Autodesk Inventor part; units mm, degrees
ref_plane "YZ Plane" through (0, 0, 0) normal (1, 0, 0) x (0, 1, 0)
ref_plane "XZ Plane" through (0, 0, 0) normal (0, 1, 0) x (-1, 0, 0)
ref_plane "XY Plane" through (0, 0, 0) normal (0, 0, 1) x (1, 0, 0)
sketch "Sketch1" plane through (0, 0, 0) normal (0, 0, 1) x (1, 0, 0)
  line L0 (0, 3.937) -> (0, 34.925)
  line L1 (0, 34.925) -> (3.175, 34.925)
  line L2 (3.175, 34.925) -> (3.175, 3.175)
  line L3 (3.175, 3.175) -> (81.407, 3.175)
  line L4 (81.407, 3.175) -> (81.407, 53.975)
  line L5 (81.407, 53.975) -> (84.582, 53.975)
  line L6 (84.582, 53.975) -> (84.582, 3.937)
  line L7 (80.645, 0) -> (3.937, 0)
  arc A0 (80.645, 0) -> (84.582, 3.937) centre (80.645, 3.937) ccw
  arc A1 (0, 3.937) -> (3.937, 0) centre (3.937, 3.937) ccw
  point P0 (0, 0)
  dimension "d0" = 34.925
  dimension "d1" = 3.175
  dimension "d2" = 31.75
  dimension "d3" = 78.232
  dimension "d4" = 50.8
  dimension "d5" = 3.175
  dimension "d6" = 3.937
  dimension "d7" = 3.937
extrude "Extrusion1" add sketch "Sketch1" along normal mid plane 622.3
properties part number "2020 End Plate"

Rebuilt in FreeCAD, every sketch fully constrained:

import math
import FreeCAD as App
import Part
import Sketcher
from FreeCAD import Vector
Q = App.Units.Quantity

doc = App.newDocument("Part")
body = doc.addObject("PartDesign::Body", "Body")

sketch1 = body.newObject("Sketcher::SketchObject", "Sketch")
sketch1.AttachmentSupport = (doc.getObject("XY_Plane"), [""])
sketch1.MapMode = "FlatFace"
sketch1.addGeometry(Part.LineSegment(Vector(0, 34.9, 0), Vector(0, 3.9, 0)), False)
sketch1.addGeometry(Part.ArcOfCircle(Part.Circle(Vector(3.9, 3.9, 0), Vector(0, 0, 1), 3.9), math.radians(180), math.radians(270)), False)
sketch1.addGeometry(Part.LineSegment(Vector(3.9, 0, 0), Vector(80.6, 0, 0)), False)
sketch1.addGeometry(Part.ArcOfCircle(Part.Circle(Vector(80.6, 3.9, 0), Vector(0, 0, 1), 3.9), math.radians(-90), math.radians(0)), False)
sketch1.addGeometry(Part.LineSegment(Vector(84.6, 3.9, 0), Vector(84.6, 54, 0)), False)
sketch1.addGeometry(Part.LineSegment(Vector(84.6, 54, 0), Vector(81.4, 54, 0)), False)
sketch1.addGeometry(Part.LineSegment(Vector(81.4, 54, 0), Vector(81.4, 3.2, 0)), False)
sketch1.addGeometry(Part.LineSegment(Vector(81.4, 3.2, 0), Vector(3.2, 3.2, 0)), False)
sketch1.addGeometry(Part.LineSegment(Vector(3.2, 3.2, 0), Vector(3.2, 34.9, 0)), False)
sketch1.addGeometry(Part.LineSegment(Vector(3.2, 34.9, 0), Vector(0, 34.9, 0)), False)
sketch1.addConstraint(Sketcher.Constraint("Tangent", 0, 2, 1, 1))
sketch1.addConstraint(Sketcher.Constraint("Tangent", 1, 2, 2, 1))
sketch1.addConstraint(Sketcher.Constraint("Tangent", 2, 2, 3, 1))
sketch1.addConstraint(Sketcher.Constraint("Tangent", 3, 2, 4, 1))
sketch1.addConstraint(Sketcher.Constraint("Coincident", 4, 2, 5, 1))
sketch1.addConstraint(Sketcher.Constraint("Coincident", 5, 2, 6, 1))
sketch1.addConstraint(Sketcher.Constraint("Coincident", 6, 2, 7, 1))
sketch1.addConstraint(Sketcher.Constraint("Coincident", 7, 2, 8, 1))
sketch1.addConstraint(Sketcher.Constraint("Coincident", 8, 2, 9, 1))
sketch1.addConstraint(Sketcher.Constraint("Coincident", 9, 2, 0, 1))
sketch1.addConstraint(Sketcher.Constraint("Vertical", 0))
sketch1.addConstraint(Sketcher.Constraint("Horizontal", 2))
sketch1.addConstraint(Sketcher.Constraint("Vertical", 4))
sketch1.addConstraint(Sketcher.Constraint("Horizontal", 5))
sketch1.addConstraint(Sketcher.Constraint("Vertical", 6))
sketch1.addConstraint(Sketcher.Constraint("Horizontal", 7))
sketch1.addConstraint(Sketcher.Constraint("Vertical", 8))
sketch1.addConstraint(Sketcher.Constraint("Horizontal", 9))
sketch1.addConstraint(Sketcher.Constraint("Equal", 1, 3))
sketch1.addConstraint(Sketcher.Constraint("PointOnObject", 0, 2, -2))
sketch1.addConstraint(Sketcher.Constraint("PointOnObject", 1, 2, -1))
sketch1.addConstraint(Sketcher.Constraint("Equal", 5, 9))
sketch1.addConstraint(Sketcher.Constraint("DistanceY", 6, 2, 6, 1, Q("2 in")))
sketch1.addConstraint(Sketcher.Constraint("Radius", 1, Q("0.155 in")))
sketch1.addConstraint(Sketcher.Constraint("DistanceX", 7, 2, 7, 1, Q("3.08 in")))
sketch1.addConstraint(Sketcher.Constraint("DistanceY", 8, 1, 8, 2, Q("1.25 in")))
sketch1.addConstraint(Sketcher.Constraint("DistanceX", 5, 2, 5, 1, Q("0.125 in")))
sketch1.addConstraint(Sketcher.Constraint("DistanceY", -1, 1, 6, 2, Q("0.125 in")))
pad1 = body.newObject("PartDesign::Pad", "Pad")
pad1.Profile = sketch1
pad1.Length = Q("24.5 in")
pad1.Midplane = True

doc.recompute()
